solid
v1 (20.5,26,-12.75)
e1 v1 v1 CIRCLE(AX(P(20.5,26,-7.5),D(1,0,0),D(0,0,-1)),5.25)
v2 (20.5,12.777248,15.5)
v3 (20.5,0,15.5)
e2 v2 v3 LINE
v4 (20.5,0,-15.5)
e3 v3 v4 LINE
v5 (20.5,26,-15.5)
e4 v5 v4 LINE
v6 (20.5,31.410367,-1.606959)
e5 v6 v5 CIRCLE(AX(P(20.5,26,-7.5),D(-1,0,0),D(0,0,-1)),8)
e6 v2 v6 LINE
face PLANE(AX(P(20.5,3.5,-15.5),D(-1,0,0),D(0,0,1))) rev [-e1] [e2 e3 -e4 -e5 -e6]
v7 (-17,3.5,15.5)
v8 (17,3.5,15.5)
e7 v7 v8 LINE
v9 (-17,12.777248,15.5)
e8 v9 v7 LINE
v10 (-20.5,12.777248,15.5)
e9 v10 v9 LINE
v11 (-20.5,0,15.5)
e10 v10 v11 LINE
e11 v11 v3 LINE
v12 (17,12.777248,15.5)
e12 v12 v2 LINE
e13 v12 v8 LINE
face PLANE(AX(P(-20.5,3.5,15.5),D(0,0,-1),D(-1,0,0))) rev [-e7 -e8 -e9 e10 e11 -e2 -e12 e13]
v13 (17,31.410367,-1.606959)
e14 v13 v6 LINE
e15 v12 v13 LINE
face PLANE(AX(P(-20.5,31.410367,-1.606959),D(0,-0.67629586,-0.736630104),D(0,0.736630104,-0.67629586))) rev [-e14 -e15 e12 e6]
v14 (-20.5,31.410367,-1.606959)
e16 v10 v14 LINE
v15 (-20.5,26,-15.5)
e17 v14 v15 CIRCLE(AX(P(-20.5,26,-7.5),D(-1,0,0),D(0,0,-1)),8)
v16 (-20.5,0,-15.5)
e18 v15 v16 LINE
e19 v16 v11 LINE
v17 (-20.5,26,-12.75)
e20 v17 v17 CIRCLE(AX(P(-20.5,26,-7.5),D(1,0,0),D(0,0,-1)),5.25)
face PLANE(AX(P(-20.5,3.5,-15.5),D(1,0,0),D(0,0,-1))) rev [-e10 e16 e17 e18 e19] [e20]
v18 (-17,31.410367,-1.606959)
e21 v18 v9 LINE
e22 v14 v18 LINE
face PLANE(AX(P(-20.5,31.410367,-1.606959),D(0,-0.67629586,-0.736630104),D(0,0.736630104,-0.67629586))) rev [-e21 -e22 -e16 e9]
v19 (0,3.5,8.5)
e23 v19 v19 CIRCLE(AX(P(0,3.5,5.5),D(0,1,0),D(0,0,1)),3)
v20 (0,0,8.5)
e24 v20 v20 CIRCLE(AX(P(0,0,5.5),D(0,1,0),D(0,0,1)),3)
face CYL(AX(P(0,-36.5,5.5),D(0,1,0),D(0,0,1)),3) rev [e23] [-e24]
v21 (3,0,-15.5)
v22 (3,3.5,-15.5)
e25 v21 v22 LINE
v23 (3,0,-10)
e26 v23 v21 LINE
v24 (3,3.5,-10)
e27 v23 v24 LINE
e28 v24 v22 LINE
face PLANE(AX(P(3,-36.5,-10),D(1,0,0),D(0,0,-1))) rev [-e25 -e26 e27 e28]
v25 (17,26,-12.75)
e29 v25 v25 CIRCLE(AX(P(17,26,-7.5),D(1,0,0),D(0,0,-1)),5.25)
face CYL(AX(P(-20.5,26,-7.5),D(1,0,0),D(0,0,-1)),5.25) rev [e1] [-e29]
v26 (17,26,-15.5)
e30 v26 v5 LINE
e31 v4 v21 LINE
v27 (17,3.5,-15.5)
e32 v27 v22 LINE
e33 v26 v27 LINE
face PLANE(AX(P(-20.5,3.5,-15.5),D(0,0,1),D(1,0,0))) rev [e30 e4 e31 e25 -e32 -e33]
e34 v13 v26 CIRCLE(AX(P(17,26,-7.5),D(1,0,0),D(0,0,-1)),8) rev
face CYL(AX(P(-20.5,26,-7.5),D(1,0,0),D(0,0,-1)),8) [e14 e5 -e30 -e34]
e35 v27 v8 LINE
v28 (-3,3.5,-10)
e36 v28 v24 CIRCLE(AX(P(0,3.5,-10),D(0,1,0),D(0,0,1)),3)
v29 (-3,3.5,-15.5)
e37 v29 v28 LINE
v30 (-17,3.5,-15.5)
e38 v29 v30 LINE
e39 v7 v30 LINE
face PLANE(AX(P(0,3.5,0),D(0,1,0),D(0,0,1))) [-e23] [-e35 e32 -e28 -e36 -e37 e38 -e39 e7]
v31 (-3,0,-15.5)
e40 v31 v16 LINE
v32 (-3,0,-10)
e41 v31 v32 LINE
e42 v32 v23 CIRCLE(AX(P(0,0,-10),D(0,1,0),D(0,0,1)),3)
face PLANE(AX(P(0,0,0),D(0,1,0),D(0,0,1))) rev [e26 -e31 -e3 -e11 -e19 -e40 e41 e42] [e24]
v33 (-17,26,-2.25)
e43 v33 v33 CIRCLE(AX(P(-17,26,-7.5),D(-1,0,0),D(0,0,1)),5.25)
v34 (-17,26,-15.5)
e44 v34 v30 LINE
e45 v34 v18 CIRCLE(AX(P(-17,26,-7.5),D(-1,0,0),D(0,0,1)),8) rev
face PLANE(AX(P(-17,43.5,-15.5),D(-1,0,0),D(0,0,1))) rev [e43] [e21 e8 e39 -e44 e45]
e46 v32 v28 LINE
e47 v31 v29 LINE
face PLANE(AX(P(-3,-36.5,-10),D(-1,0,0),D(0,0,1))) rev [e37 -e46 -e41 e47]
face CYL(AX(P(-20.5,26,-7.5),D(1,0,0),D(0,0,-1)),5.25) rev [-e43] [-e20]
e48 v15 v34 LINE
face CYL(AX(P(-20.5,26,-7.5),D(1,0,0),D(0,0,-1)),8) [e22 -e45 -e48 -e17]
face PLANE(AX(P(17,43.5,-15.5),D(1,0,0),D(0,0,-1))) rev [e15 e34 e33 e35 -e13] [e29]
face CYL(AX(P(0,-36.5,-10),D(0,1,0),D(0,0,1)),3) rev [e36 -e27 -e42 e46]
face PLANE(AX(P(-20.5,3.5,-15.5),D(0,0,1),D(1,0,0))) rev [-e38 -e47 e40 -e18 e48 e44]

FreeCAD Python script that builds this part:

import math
import FreeCAD as App
import Part
import Sketcher


def add_polygon(sketch, points):
    """Adds a closed chain of lines whose ends are joined by coincident constraints."""
    first, n = sketch.GeometryCount, len(points)
    for a, b in zip(points, points[1:] + points[:1]):
        sketch.addGeometry(Part.LineSegment(App.Vector(*a, 0), App.Vector(*b, 0)), False)
    for i in range(n):
        sketch.addConstraint(Sketcher.Constraint("Coincident", first + i, 2, first + (i + 1) % n, 1))

doc = App.newDocument("Part")
params = doc.addObject("Spreadsheet::Sheet", "Params")
for row, (alias, value) in enumerate([
    ("sketch1_width", "41 mm"),
    ("sketch1_height", "31 mm"),
    ("pad1_length", "3.5 mm"),
    ("sketch2_height", "31 mm"),
    ("sketch2_width", "3.5 mm"),
    ("pad2_length", "40 mm"),
    ("sketch3_radius", "8 mm"),
    ("sketch3_diameter", "10.5 mm"),
    ("sketch3_height", "31 mm"),
    ("sketch3_width", "17.5 mm"),
    ("sketch4_diameter", "6 mm"),
    ("sketch4_height", "5.5 mm"),
    ("pocket2_length", "40 mm"),
], start=1):
    params.set(f"A{row}", alias)
    params.set(f"B{row}", "=" + value)
    params.setAlias(f"B{row}", alias)

body = doc.addObject("PartDesign::Body", "Body")

sketch1 = body.newObject("Sketcher::SketchObject", "Sketch")
sketch1.AttachmentSupport = (doc.getObject("XZ_Plane"), [""])
sketch1.MapMode = "FlatFace"
add_polygon(sketch1, [(-20, -16), (-20, 16), (20, 16), (20, -16)])
sketch1.addConstraint(Sketcher.Constraint("Vertical", 0))
sketch1.addConstraint(Sketcher.Constraint("Horizontal", 1))
sketch1.addConstraint(Sketcher.Constraint("Vertical", 2))
sketch1.addConstraint(Sketcher.Constraint("Horizontal", 3))
sketch1.addConstraint(Sketcher.Constraint("Symmetric", 0, 2, 2, 2, -1, 1))
sketch1.addConstraint(Sketcher.Constraint("DistanceX", 1, 1, 1, 2, 41.0))
sketch1.addConstraint(Sketcher.Constraint("DistanceY", 0, 1, 0, 2, 31.0))
sketch1.setExpression("Constraints[9]", "Params.sketch1_width")
sketch1.setExpression("Constraints[10]", "Params.sketch1_height")
pad1 = body.newObject("PartDesign::Pad", "Pad")
pad1.Profile = sketch1
pad1.setExpression("Length", "Params.pad1_length")
pad1.Reversed = True

sketch2 = body.newObject("Sketcher::SketchObject", "Sketch001")
sketch2.AttachmentSupport = (doc.getObject("XZ_Plane"), [""])
sketch2.MapMode = "FlatFace"
sketch2.AttachmentOffset = App.Placement(App.Vector(0, 0, -3.5), App.Rotation())
add_polygon(sketch2, [(-20.5, -15.5), (-20.5, 15.5), (-17, 15.5), (-17, -15.5)])
add_polygon(sketch2, [(17, -15.5), (17, 15.5), (20.5, 15.5), (20.5, -15.5)])
sketch2.addConstraint(Sketcher.Constraint("Vertical", 0))
sketch2.addConstraint(Sketcher.Constraint("Horizontal", 1))
sketch2.addConstraint(Sketcher.Constraint("Vertical", 2))
sketch2.addConstraint(Sketcher.Constraint("Horizontal", 3))
sketch2.addConstraint(Sketcher.Constraint("Vertical", 4))
sketch2.addConstraint(Sketcher.Constraint("Horizontal", 5))
sketch2.addConstraint(Sketcher.Constraint("Vertical", 6))
sketch2.addConstraint(Sketcher.Constraint("Horizontal", 7))
sketch2.addConstraint(Sketcher.Constraint("Symmetric", 2, 2, 4, 2, -1, 1))
sketch2.addConstraint(Sketcher.Constraint("Symmetric", 0, 2, 6, 2, -1, 1))
sketch2.addConstraint(Sketcher.Constraint("Horizontal", 1, 2, 4, 2))
sketch2.addConstraint(Sketcher.Constraint("DistanceY", 0, 1, 0, 2, 31.0))
sketch2.addConstraint(Sketcher.Constraint("DistanceX", 1, 1, 1, 2, 3.5))
sketch2.addConstraint(Sketcher.Constraint("DistanceX", 1, 2, -1, 1, 17.0))
sketch2.setExpression("Constraints[19]", "Params.sketch2_height")
sketch2.setExpression("Constraints[20]", "Params.sketch2_width")
pad2 = body.newObject("PartDesign::Pad", "Pad001")
pad2.Profile = sketch2
pad2.setExpression("Length", "Params.pad2_length")
pad2.Reversed = True

sketch3 = body.newObject("Sketcher::SketchObject", "Sketch002")
sketch3.AttachmentSupport = (doc.getObject("YZ_Plane"), [""])
sketch3.MapMode = "FlatFace"
sketch3.AttachmentOffset = App.Placement(App.Vector(0, 0, 20.5), App.Rotation())
sketch3.addGeometry(Part.Circle(App.Vector(26, -8, 0), App.Vector(0, 0, 1), 5), False)
sketch3.addGeometry(Part.LineSegment(App.Vector(13, 16, 0), App.Vector(31, -2, 0)), False)
sketch3.addGeometry(Part.ArcOfCircle(Part.Circle(App.Vector(26, -8, 0), App.Vector(0, 0, 1), 8), math.radians(-90), math.radians(47)), False)
sketch3.addGeometry(Part.LineSegment(App.Vector(26, -16, 0), App.Vector(44, -16, 0)), False)
sketch3.addGeometry(Part.LineSegment(App.Vector(44, -16, 0), App.Vector(44, 16, 0)), False)
sketch3.addGeometry(Part.LineSegment(App.Vector(44, 16, 0), App.Vector(13, 16, 0)), False)
sketch3.addConstraint(Sketcher.Constraint("Tangent", 1, 2, 2, 2))
sketch3.addConstraint(Sketcher.Constraint("Tangent", 2, 1, 3, 1))
sketch3.addConstraint(Sketcher.Constraint("Coincident", 3, 2, 4, 1))
sketch3.addConstraint(Sketcher.Constraint("Coincident", 4, 2, 5, 1))
sketch3.addConstraint(Sketcher.Constraint("Coincident", 5, 2, 1, 1))
sketch3.addConstraint(Sketcher.Constraint("Horizontal", 3))
sketch3.addConstraint(Sketcher.Constraint("Vertical", 4))
sketch3.addConstraint(Sketcher.Constraint("Horizontal", 5))
sketch3.addConstraint(Sketcher.Constraint("Coincident", 2, 3, 0, 3))
sketch3.addConstraint(Sketcher.Constraint("Radius", 2, 8.0))
sketch3.addConstraint(Sketcher.Constraint("Diameter", 0, 10.5))
sketch3.addConstraint(Sketcher.Constraint("DistanceY", 4, 1, 4, 2, 31.0))
sketch3.addConstraint(Sketcher.Constraint("DistanceX", 3, 1, 3, 2, 17.5))
sketch3.addConstraint(Sketcher.Constraint("DistanceX", -1, 1, 0, 3, 26.0))
sketch3.addConstraint(Sketcher.Constraint("DistanceY", 0, 3, -1, 1, 7.5))
sketch3.addConstraint(Sketcher.Constraint("DistanceX", 5, 2, 5, 1, 30.722752))
sketch3.setExpression("Constraints[9]", "Params.sketch3_radius")
sketch3.setExpression("Constraints[10]", "Params.sketch3_diameter")
sketch3.setExpression("Constraints[11]", "Params.sketch3_height")
sketch3.setExpression("Constraints[12]", "Params.sketch3_width")
pocket1 = body.newObject("PartDesign::Pocket", "Pocket")
pocket1.Profile = sketch3
pocket1.Type = "ThroughAll"

sketch4 = body.newObject("Sketcher::SketchObject", "Sketch003")
sketch4.AttachmentSupport = (doc.getObject("XZ_Plane"), [""])
sketch4.MapMode = "FlatFace"
sketch4.AttachmentOffset = App.Placement(App.Vector(0, 0, -3.5), App.Rotation())
sketch4.addGeometry(Part.Circle(App.Vector(0, 5.5, 0), App.Vector(0, 0, 1), 3), False)
sketch4.addGeometry(Part.LineSegment(App.Vector(-3, -15.5, 0), App.Vector(-3, -10, 0)), False)
sketch4.addGeometry(Part.ArcOfCircle(Part.Circle(App.Vector(0, -10, 0), App.Vector(0, 0, 1), 3), math.radians(0), math.radians(180)), False)
sketch4.addGeometry(Part.LineSegment(App.Vector(3, -10, 0), App.Vector(3, -15.5, 0)), False)
sketch4.addGeometry(Part.LineSegment(App.Vector(3, -15.5, 0), App.Vector(-3, -15.5, 0)), False)
sketch4.addConstraint(Sketcher.Constraint("Tangent", 1, 2, 2, 2))
sketch4.addConstraint(Sketcher.Constraint("Tangent", 2, 1, 3, 1))
sketch4.addConstraint(Sketcher.Constraint("Coincident", 3, 2, 4, 1))
sketch4.addConstraint(Sketcher.Constraint("Coincident", 4, 2, 1, 1))
sketch4.addConstraint(Sketcher.Constraint("Vertical", 1))
sketch4.addConstraint(Sketcher.Constraint("Vertical", 3))
sketch4.addConstraint(Sketcher.Constraint("Horizontal", 4))
sketch4.addConstraint(Sketcher.Constraint("Equal", 0, 2))
sketch4.addConstraint(Sketcher.Constraint("PointOnObject", 0, 3, -2))
sketch4.addConstraint(Sketcher.Constraint("PointOnObject", 2, 3, -2))
sketch4.addConstraint(Sketcher.Constraint("Diameter", 0, 6.0))
sketch4.addConstraint(Sketcher.Constraint("DistanceY", 1, 1, 1, 2, 5.5))
sketch4.addConstraint(Sketcher.Constraint("DistanceY", 2, 3, -1, 1, 10.0))
sketch4.addConstraint(Sketcher.Constraint("DistanceY", 3, 2, 0, 3, 21.0))
sketch4.setExpression("Constraints[10]", "Params.sketch4_diameter")
sketch4.setExpression("Constraints[11]", "Params.sketch4_height")
pocket2 = body.newObject("PartDesign::Pocket", "Pocket001")
pocket2.Profile = sketch4
pocket2.setExpression("Length", "Params.pocket2_length")
pocket2.Reversed = True

doc.recompute()
